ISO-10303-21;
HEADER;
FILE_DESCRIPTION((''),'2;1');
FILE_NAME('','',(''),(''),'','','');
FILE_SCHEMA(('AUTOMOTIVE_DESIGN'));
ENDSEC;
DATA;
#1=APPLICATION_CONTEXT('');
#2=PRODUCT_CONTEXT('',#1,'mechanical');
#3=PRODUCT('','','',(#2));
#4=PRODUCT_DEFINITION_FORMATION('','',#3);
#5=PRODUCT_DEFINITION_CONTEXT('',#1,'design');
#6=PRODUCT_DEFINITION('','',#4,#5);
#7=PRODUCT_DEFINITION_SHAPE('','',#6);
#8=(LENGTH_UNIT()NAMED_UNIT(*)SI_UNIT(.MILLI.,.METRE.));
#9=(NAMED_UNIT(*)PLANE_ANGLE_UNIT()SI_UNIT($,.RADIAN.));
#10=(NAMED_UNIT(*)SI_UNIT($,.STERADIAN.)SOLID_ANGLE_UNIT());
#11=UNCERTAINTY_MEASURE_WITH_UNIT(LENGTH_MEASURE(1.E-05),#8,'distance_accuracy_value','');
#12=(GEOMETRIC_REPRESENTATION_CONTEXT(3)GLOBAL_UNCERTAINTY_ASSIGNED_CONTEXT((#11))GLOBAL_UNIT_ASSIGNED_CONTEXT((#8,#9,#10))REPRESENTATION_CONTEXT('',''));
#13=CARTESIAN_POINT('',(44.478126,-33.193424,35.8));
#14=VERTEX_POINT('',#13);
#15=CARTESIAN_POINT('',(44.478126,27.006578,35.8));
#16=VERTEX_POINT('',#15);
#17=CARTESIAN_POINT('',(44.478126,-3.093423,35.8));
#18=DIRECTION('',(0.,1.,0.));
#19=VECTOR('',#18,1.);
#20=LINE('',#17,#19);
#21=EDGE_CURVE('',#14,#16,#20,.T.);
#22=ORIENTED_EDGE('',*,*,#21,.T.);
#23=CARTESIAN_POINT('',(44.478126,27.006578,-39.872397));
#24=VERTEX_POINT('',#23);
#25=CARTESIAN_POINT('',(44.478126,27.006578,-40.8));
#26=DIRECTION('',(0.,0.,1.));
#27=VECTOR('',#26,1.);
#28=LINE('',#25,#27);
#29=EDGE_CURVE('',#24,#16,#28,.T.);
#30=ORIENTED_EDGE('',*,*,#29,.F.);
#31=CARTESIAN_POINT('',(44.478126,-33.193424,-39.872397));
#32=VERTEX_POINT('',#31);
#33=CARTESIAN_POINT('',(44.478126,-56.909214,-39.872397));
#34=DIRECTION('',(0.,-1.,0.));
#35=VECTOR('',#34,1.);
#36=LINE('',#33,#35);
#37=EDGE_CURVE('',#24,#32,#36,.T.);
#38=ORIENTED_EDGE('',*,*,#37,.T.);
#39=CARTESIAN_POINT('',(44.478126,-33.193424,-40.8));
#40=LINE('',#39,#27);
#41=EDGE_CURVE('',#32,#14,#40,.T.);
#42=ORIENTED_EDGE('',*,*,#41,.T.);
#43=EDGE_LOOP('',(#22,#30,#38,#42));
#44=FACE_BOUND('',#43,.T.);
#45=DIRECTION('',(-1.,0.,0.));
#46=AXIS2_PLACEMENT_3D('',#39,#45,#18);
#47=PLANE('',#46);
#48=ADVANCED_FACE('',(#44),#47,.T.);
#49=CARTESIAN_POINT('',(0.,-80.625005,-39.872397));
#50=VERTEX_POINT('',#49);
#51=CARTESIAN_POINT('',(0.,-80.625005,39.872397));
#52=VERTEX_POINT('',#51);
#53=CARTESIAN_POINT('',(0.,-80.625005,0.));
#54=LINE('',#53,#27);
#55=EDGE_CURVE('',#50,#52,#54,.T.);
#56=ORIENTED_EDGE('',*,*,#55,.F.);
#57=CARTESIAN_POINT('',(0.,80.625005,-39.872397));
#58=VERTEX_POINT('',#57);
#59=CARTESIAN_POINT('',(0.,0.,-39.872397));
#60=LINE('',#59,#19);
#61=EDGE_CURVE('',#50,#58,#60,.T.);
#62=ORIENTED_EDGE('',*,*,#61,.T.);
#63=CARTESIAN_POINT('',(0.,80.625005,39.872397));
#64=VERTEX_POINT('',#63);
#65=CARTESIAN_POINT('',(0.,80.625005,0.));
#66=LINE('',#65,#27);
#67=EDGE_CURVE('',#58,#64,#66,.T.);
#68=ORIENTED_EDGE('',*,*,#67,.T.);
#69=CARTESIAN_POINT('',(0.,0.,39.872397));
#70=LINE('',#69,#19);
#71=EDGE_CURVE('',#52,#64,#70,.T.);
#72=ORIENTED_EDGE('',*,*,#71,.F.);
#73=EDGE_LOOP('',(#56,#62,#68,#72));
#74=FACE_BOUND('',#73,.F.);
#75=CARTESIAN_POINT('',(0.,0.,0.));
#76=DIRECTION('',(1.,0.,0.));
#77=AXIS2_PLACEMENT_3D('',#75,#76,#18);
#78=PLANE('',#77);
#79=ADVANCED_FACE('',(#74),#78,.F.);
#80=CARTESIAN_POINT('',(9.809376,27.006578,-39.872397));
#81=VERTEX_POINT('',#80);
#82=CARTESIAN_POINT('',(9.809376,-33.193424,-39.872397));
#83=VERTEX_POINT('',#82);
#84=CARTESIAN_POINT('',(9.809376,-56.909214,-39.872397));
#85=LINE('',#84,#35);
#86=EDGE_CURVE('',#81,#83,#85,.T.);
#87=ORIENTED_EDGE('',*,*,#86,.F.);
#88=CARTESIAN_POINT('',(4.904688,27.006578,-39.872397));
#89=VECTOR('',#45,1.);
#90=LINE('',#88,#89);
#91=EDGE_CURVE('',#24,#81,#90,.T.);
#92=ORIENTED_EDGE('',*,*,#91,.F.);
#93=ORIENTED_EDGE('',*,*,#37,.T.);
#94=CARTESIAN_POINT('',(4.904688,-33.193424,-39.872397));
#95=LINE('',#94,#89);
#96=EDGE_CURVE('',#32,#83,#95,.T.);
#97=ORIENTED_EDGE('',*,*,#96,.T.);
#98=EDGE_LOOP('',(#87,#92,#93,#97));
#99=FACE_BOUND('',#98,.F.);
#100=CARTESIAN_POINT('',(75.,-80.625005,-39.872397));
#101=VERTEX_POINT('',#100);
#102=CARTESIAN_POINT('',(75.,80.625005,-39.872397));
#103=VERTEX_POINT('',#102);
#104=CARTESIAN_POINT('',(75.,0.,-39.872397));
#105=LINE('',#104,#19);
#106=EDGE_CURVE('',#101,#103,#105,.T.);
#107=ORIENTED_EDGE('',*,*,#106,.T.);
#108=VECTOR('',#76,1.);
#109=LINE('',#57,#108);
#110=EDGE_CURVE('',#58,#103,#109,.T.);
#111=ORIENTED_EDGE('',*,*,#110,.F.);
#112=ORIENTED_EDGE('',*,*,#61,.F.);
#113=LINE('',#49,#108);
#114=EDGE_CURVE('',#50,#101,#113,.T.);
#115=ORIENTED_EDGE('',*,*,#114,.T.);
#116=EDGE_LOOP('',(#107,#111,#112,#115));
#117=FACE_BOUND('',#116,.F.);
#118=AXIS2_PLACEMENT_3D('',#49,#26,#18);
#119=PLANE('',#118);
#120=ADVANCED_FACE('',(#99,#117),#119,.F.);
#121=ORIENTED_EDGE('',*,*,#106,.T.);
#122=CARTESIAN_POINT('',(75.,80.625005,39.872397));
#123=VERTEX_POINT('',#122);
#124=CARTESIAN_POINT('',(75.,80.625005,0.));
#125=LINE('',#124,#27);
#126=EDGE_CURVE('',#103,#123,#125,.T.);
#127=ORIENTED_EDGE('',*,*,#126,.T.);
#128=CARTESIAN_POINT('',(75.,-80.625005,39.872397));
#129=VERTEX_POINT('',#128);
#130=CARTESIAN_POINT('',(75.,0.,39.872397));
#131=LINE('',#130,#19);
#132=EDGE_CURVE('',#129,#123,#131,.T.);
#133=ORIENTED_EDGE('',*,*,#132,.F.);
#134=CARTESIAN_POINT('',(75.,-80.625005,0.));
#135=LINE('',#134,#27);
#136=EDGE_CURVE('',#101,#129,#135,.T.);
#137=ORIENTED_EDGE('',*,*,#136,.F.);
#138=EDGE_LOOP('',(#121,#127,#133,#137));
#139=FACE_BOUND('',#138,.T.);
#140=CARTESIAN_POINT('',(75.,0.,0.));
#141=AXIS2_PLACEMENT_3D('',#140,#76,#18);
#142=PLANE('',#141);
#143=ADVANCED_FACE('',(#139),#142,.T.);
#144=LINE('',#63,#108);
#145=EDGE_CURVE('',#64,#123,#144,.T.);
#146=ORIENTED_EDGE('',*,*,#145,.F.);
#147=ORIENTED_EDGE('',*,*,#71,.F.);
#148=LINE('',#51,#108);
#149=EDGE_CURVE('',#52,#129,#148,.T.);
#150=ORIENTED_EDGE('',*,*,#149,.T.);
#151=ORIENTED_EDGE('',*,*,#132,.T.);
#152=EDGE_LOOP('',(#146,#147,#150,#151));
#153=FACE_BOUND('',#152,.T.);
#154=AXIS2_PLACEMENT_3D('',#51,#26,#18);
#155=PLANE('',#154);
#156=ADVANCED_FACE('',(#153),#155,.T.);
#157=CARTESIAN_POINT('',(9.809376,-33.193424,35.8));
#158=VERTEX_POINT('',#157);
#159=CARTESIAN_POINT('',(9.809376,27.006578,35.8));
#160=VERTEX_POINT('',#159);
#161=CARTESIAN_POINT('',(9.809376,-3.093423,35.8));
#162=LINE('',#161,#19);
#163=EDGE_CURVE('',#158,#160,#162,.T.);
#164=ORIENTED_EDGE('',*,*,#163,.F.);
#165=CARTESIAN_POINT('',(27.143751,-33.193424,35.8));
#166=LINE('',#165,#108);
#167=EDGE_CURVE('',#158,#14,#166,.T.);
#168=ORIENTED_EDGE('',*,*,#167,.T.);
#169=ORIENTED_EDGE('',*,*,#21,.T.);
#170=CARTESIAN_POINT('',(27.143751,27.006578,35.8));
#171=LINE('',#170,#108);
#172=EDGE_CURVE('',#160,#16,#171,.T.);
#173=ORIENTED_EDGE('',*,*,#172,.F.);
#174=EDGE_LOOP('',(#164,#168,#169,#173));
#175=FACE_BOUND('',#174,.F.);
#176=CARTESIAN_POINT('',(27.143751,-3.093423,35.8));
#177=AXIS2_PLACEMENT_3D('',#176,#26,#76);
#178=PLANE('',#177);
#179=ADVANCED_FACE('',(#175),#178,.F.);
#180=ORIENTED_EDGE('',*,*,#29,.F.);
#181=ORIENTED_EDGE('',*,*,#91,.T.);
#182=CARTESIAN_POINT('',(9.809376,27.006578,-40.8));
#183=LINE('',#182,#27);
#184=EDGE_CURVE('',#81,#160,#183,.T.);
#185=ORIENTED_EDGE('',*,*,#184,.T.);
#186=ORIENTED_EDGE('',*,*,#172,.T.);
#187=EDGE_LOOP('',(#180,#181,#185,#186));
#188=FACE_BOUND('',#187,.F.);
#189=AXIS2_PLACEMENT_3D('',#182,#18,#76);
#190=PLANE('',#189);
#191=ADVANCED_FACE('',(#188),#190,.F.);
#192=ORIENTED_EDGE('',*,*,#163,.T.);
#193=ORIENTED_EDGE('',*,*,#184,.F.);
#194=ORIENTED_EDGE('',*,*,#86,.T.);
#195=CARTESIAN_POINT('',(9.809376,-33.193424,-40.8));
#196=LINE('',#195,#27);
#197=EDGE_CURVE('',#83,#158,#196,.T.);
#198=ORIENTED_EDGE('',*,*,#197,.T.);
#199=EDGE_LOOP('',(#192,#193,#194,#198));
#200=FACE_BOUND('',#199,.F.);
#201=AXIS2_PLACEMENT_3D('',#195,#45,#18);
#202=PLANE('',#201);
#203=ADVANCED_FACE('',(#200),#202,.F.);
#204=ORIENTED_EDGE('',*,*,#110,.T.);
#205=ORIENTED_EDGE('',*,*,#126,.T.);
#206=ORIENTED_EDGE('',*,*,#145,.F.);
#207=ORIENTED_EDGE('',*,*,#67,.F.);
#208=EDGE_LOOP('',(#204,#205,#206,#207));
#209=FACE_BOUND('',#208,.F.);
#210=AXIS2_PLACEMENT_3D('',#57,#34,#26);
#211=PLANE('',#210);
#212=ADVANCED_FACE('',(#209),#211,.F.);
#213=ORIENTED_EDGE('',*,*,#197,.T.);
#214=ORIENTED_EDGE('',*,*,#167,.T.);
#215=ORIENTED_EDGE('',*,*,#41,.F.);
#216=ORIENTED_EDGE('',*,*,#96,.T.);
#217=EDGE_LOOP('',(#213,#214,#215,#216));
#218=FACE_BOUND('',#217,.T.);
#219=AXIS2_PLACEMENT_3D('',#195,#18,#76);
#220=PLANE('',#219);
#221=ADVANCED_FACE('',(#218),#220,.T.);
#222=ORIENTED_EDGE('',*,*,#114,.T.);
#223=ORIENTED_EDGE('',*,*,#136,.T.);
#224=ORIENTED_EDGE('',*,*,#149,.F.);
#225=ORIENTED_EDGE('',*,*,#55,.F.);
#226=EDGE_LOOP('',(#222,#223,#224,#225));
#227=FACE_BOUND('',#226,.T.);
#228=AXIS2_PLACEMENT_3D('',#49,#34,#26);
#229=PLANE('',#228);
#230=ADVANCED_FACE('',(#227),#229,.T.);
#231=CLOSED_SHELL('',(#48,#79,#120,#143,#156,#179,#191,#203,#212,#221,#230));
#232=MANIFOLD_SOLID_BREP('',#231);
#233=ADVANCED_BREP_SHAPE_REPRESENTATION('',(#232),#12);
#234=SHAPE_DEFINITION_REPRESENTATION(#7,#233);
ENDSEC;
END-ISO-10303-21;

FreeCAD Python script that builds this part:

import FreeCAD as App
import Part
import Sketcher

V = App.Vector


def add_polygon(sketch, points):
    """Adds a closed chain of lines whose ends are joined by coincident constraints."""
    first, n = sketch.GeometryCount, len(points)
    for a, b in zip(points, points[1:] + points[:1]):
        sketch.addGeometry(Part.LineSegment(App.Vector(*a, 0), App.Vector(*b, 0)), False)
    for i in range(n):
        sketch.addConstraint(Sketcher.Constraint("Coincident", first + i, 2, first + (i + 1) % n, 1))

doc = App.newDocument("Part")
params = doc.addObject("Spreadsheet::Sheet", "Params")
for row, (alias, value) in enumerate([
    ("pad1_length", "75 mm"),
    ("sketch2_height", "60.200002 mm"),
    ("pocket1_length", "76.6 mm"),
], start=1):
    params.set(f"A{row}", alias)
    params.set(f"B{row}", "=" + value)
    params.setAlias(f"B{row}", alias)

body = doc.addObject("PartDesign::Body", "Body")

# Sketch on YZ plane
sketch1 = doc.addObject("Sketcher::SketchObject", "Sketch")
body.addObject(sketch1)
sketch1.AttachmentSupport = (doc.YZ_Plane, [""])
sketch1.MapMode = "FlatFace"
add_polygon(sketch1, [(-81, 40), (-81, -40), (81, -40), (81, 40)])  # lines 0-3
sketch1.addConstraint(Sketcher.Constraint("Vertical", 0))
sketch1.addConstraint(Sketcher.Constraint("Horizontal", 1))
sketch1.addConstraint(Sketcher.Constraint("Vertical", 2))
sketch1.addConstraint(Sketcher.Constraint("Horizontal", 3))
sketch1.addConstraint(Sketcher.Constraint("Symmetric", 0, 2, 2, 2, -1, 1))
sketch1.addConstraint(Sketcher.Constraint("DistanceX", 1, 1, 1, 2, 161.25001))
sketch1.addConstraint(Sketcher.Constraint("DistanceY", 0, 2, 0, 1, 79.744794))
pad1 = doc.addObject("PartDesign::Pad", "Pad")
body.addObject(pad1)
pad1.Profile = sketch1
pad1.setExpression("Length", "Params.pad1_length")

# Sketch on XY plane
sketch2 = doc.addObject("Sketcher::SketchObject", "Sketch001")
body.addObject(sketch2)
sketch2.AttachmentSupport = (doc.XY_Plane, [""])
sketch2.MapMode = "FlatFace"
sketch2.AttachmentOffset = App.Placement(V(0, 0, -40.8), App.Rotation())
add_polygon(sketch2, [(10, 27), (10, -33), (44, -33), (44, 27)])  # lines 0-3
sketch2.addConstraint(Sketcher.Constraint("Vertical", 0))
sketch2.addConstraint(Sketcher.Constraint("Horizontal", 1))
sketch2.addConstraint(Sketcher.Constraint("Vertical", 2))
sketch2.addConstraint(Sketcher.Constraint("Horizontal", 3))
sketch2.addConstraint(Sketcher.Constraint("DistanceY", 0, 2, 0, 1, 60.200002))
sketch2.addConstraint(Sketcher.Constraint("DistanceX", 1, 1, 1, 2, 34.66875))
sketch2.addConstraint(Sketcher.Constraint("DistanceY", -1, 1, 2, 2, 27.006578))
sketch2.addConstraint(Sketcher.Constraint("DistanceX", -1, 1, 0, 2, 9.809376))
sketch2.setExpression("Constraints[8]", "Params.sketch2_height")
pocket1 = doc.addObject("PartDesign::Pocket", "Pocket")
body.addObject(pocket1)
pocket1.Profile = sketch2
pocket1.setExpression("Length", "Params.pocket1_length")
pocket1.Reversed = True

doc.recompute()
